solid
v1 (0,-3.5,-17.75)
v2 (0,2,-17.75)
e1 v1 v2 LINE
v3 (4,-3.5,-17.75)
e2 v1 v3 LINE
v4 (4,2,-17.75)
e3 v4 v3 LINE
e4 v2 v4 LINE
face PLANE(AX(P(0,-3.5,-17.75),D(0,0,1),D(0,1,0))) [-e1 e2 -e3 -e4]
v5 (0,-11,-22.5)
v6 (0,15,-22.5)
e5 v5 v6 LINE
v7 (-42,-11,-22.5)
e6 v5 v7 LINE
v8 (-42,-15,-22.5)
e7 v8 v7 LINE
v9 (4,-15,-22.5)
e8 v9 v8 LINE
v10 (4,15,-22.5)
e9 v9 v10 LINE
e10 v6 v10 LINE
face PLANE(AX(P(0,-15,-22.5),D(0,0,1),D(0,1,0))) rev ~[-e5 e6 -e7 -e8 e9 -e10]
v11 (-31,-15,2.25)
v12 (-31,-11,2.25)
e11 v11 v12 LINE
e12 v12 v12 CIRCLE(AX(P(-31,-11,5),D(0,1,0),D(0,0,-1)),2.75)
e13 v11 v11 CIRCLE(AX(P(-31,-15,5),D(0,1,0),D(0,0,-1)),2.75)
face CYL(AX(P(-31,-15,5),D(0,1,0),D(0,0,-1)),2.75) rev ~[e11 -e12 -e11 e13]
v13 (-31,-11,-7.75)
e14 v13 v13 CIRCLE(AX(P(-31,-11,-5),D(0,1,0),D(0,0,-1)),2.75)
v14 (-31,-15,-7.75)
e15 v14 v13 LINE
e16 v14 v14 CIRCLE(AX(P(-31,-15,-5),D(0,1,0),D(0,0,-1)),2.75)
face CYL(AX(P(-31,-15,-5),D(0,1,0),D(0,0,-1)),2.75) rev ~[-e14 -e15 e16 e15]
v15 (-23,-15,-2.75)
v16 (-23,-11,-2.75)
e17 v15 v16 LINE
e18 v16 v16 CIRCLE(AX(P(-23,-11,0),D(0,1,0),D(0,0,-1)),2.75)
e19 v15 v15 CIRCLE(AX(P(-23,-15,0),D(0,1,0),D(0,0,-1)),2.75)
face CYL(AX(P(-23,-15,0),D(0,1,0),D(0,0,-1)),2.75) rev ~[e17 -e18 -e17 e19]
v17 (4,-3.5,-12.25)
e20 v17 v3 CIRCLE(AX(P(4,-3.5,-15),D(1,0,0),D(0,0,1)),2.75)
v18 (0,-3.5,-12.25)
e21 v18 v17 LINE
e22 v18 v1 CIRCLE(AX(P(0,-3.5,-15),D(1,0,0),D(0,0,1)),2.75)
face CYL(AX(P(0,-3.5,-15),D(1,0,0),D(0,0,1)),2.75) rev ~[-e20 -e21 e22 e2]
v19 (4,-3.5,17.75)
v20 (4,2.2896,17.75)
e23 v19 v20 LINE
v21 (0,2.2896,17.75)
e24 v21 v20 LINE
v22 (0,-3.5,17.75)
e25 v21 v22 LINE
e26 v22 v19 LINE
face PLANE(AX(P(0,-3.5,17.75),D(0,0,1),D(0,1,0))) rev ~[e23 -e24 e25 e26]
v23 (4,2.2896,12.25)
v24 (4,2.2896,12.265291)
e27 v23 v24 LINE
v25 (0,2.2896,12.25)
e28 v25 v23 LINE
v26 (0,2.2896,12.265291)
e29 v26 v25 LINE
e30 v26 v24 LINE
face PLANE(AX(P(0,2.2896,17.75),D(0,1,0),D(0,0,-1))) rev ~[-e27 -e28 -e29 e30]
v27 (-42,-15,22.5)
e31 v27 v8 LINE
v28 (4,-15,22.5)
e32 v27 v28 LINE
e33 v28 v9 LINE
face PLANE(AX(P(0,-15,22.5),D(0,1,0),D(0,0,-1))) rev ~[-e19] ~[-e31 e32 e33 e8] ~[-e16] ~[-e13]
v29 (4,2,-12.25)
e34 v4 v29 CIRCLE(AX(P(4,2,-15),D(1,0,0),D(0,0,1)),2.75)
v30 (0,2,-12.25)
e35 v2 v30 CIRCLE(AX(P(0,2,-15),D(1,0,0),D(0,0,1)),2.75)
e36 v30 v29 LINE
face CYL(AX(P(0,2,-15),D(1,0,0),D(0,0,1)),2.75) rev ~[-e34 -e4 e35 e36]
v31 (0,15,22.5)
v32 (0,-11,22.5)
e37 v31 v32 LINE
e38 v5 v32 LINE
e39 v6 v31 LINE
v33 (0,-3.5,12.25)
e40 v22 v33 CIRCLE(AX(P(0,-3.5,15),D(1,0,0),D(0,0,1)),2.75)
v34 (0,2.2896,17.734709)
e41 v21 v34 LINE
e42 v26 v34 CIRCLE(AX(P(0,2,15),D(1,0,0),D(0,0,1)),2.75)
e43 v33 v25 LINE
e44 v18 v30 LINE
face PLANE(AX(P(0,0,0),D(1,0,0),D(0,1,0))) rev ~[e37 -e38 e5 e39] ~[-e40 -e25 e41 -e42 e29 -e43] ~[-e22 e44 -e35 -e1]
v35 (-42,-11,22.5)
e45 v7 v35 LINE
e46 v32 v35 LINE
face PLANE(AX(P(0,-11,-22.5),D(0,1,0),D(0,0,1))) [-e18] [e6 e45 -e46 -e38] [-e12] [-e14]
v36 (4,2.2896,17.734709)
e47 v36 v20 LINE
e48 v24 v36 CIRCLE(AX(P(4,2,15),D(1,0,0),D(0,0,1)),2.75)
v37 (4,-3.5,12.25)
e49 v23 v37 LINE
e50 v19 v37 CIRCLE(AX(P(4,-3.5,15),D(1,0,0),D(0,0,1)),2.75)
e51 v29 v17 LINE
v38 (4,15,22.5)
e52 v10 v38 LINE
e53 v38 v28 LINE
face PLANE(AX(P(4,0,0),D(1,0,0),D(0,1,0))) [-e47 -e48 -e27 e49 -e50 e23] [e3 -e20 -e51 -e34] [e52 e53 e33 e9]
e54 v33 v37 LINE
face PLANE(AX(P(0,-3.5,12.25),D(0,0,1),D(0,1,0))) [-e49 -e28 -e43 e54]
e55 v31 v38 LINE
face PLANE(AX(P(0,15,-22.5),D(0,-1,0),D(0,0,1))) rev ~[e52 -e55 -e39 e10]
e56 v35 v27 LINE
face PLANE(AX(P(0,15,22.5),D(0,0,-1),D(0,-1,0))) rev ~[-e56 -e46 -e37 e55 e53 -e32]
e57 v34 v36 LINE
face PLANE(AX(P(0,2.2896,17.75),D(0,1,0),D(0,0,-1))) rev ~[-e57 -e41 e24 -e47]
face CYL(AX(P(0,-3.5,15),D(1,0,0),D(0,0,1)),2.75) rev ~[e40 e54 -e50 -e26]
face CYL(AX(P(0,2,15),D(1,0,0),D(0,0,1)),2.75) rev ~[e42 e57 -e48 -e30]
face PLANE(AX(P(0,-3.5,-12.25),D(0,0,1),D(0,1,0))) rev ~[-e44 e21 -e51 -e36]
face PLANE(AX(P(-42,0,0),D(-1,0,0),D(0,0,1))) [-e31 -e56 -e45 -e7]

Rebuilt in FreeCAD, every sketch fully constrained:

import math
import FreeCAD as App
import Part
import Sketcher

V = App.Vector


def add_polygon(sketch, points):
    """Adds a closed chain of lines whose ends are joined by coincident constraints."""
    first, n = sketch.GeometryCount, len(points)
    for a, b in zip(points, points[1:] + points[:1]):
        sketch.addGeometry(Part.LineSegment(App.Vector(*a, 0), App.Vector(*b, 0)), False)
    for i in range(n):
        sketch.addConstraint(Sketcher.Constraint("Coincident", first + i, 2, first + (i + 1) % n, 1))

doc = App.newDocument("Part")
body = doc.addObject("PartDesign::Body", "Body")

# Sketch on YZ plane
sketch1 = body.newObject("Sketcher::SketchObject", "Sketch")
sketch1.AttachmentSupport = (doc.getObject("YZ_Plane"), [""])
sketch1.MapMode = "FlatFace"
add_polygon(sketch1, [(15, -22), (15, 22), (-15, 22), (-15, -22)])  # lines 0-3
sketch1.addConstraint(Sketcher.Constraint("Vertical", 0))
sketch1.addConstraint(Sketcher.Constraint("Horizontal", 1))
sketch1.addConstraint(Sketcher.Constraint("Vertical", 2))
sketch1.addConstraint(Sketcher.Constraint("Horizontal", 3))
sketch1.addConstraint(Sketcher.Constraint("Symmetric", 0, 2, 2, 2, -1, 1))
sketch1.addConstraint(Sketcher.Constraint("DistanceX", 1, 2, 1, 1, 30.0))
sketch1.addConstraint(Sketcher.Constraint("DistanceY", 0, 1, 0, 2, 45.0))
pad1 = body.newObject("PartDesign::Pad", "Pad")
pad1.Profile = sketch1
pad1.Length = 4

# Sketch on YZ plane
sketch2 = body.newObject("Sketcher::SketchObject", "Sketch001")
sketch2.AttachmentSupport = (doc.getObject("YZ_Plane"), [""])
sketch2.MapMode = "FlatFace"
add_polygon(sketch2, [(-11, -22.5), (-15, -22.5), (-15, 22.5), (-11, 22.5)])  # lines 0-3
sketch2.addConstraint(Sketcher.Constraint("Horizontal", 0))
sketch2.addConstraint(Sketcher.Constraint("Vertical", 1))
sketch2.addConstraint(Sketcher.Constraint("Horizontal", 2))
sketch2.addConstraint(Sketcher.Constraint("Vertical", 3))
sketch2.addConstraint(Sketcher.Constraint("DistanceX", 0, 2, 0, 1, 4.0))
sketch2.addConstraint(Sketcher.Constraint("DistanceY", 1, 1, 1, 2, 45.0))
sketch2.addConstraint(Sketcher.Constraint("DistanceX", 0, 2, -1, 1, 15.0))
sketch2.addConstraint(Sketcher.Constraint("DistanceY", 0, 2, -1, 1, 22.5))
pad2 = body.newObject("PartDesign::Pad", "Pad001")
pad2.Profile = sketch2
pad2.Length = 42
pad2.Reversed = True

# Sketch on XZ plane
sketch3 = body.newObject("Sketcher::SketchObject", "Sketch002")
sketch3.AttachmentSupport = (doc.getObject("XZ_Plane"), [""])
sketch3.MapMode = "FlatFace"
sketch3.AttachmentOffset = App.Placement(V(0, 0, 15), App.Rotation())
sketch3.addGeometry(Part.Circle(V(-23, 0, 0), V(0, 0, 1), 2.8), False)
sketch3.addGeometry(Part.Circle(V(-31, -5, 0), V(0, 0, 1), 2.8), False)
sketch3.addGeometry(Part.Circle(V(-31, 5, 0), V(0, 0, 1), 2.8), False)
sketch3.addConstraint(Sketcher.Constraint("Equal", 0, 1))
sketch3.addConstraint(Sketcher.Constraint("Equal", 1, 2))
sketch3.addConstraint(Sketcher.Constraint("Symmetric", 1, 3, 2, 3, -1))
sketch3.addConstraint(Sketcher.Constraint("PointOnObject", 0, 3, -1))
sketch3.addConstraint(Sketcher.Constraint("Diameter", 0, 5.5))
sketch3.addConstraint(Sketcher.Constraint("DistanceX", 0, 3, -1, 1, 23.0))
sketch3.addConstraint(Sketcher.Constraint("DistanceX", 1, 3, -1, 1, 31.0))
sketch3.addConstraint(Sketcher.Constraint("DistanceY", 1, 3, -1, 1, 5.0))
doc.recompute()
hole = body.newObject("PartDesign::Hole", "Hole")
hole.Profile = sketch3
hole.ThreadType = "None"
hole.Diameter = 5.5
hole.DepthType = "Dimension"
hole.Depth = 11.8
hole.DrillPoint = "Angled"
hole.DrillPointAngle = 118

# Sketch on YZ plane
sketch4 = body.newObject("Sketcher::SketchObject", "Sketch003")
sketch4.AttachmentSupport = (doc.getObject("YZ_Plane"), [""])
sketch4.MapMode = "FlatFace"
sketch4.addGeometry(Part.Circle(V(-3.5, 15, 0), V(0, 0, 1), 2.8), False)
sketch4.addGeometry(Part.Circle(V(-3.5, -15, 0), V(0, 0, 1), 2.8), False)
sketch4.addGeometry(Part.Circle(V(2, 15, 0), V(0, 0, 1), 2.8), False)
sketch4.addGeometry(Part.Circle(V(2, -15, 0), V(0, 0, 1), 2.8), False)
sketch4.addConstraint(Sketcher.Constraint("Equal", 0, 1))
sketch4.addConstraint(Sketcher.Constraint("Equal", 1, 2))
sketch4.addConstraint(Sketcher.Constraint("Equal", 2, 3))
sketch4.addConstraint(Sketcher.Constraint("Symmetric", 0, 3, 1, 3, -1))
sketch4.addConstraint(Sketcher.Constraint("Symmetric", 2, 3, 3, 3, -1))
sketch4.addConstraint(Sketcher.Constraint("Horizontal", 0, 3, 2, 3))
sketch4.addConstraint(Sketcher.Constraint("Diameter", 0, 5.5))
sketch4.addConstraint(Sketcher.Constraint("DistanceY", -1, 1, 0, 3, 15.0))
sketch4.addConstraint(Sketcher.Constraint("DistanceX", -1, 1, 2, 3, 2.0))
sketch4.addConstraint(Sketcher.Constraint("DistanceX", 0, 3, -1, 1, 3.5))
doc.recompute()
hole2 = body.newObject("PartDesign::Hole", "Hole001")
hole2.Profile = sketch4
hole2.ThreadType = "None"
hole2.Diameter = 5.5
hole2.DepthType = "Dimension"
hole2.Depth = 11.8
hole2.DrillPoint = "Angled"
hole2.DrillPointAngle = 118
hole2.Reversed = True

# Sketch on YZ plane
sketch5 = body.newObject("Sketcher::SketchObject", "Sketch004")
sketch5.AttachmentSupport = (doc.getObject("YZ_Plane"), [""])
sketch5.MapMode = "FlatFace"
sketch5.addGeometry(Part.ArcOfCircle(Part.Circle(V(-3.5, 15, 0), V(0, 0, 1), 2.8), math.radians(-90), math.radians(90)), False)
sketch5.addGeometry(Part.LineSegment(V(-3.5, 17.8, 0), V(2.3, 17.8, 0)), False)
sketch5.addGeometry(Part.LineSegment(V(2.3, 17.8, 0), V(2.3, 12.2, 0)), False)
sketch5.addGeometry(Part.LineSegment(V(2.3, 12.2, 0), V(-3.5, 12.2, 0)), False)
sketch5.addGeometry(Part.LineSegment(V(2, -17.8, 0), V(-3.5, -17.8, 0)), False)
sketch5.addGeometry(Part.ArcOfCircle(Part.Circle(V(-3.5, -15, 0), V(0, 0, 1), 2.8), math.radians(-90), math.radians(0)), False)
sketch5.addGeometry(Part.ArcOfCircle(Part.Circle(V(2, -15, 0), V(0, 0, 1), 2.8), math.radians(180), math.radians(270)), False)
sketch5.addGeometry(Part.ArcOfCircle(Part.Circle(V(-3.5, -15, 0), V(0, 0, 1), 2.8), math.radians(0), math.radians(90)), False)
sketch5.addGeometry(Part.LineSegment(V(-3.5, -12.2, 0), V(2, -12.2, 0)), False)
sketch5.addGeometry(Part.ArcOfCircle(Part.Circle(V(2, -15, 0), V(0, 0, 1), 2.8), math.radians(90), math.radians(180)), False)
sketch5.addConstraint(Sketcher.Constraint("Tangent", 0, 2, 1, 1))
sketch5.addConstraint(Sketcher.Constraint("Coincident", 1, 2, 2, 1))
sketch5.addConstraint(Sketcher.Constraint("Coincident", 2, 2, 3, 1))
sketch5.addConstraint(Sketcher.Constraint("Tangent", 3, 2, 0, 1))
sketch5.addConstraint(Sketcher.Constraint("Tangent", 4, 2, 5, 1))
sketch5.addConstraint(Sketcher.Constraint("Tangent", 5, 2, 6, 1))
sketch5.addConstraint(Sketcher.Constraint("Tangent", 6, 2, 4, 1))
sketch5.addConstraint(Sketcher.Constraint("Tangent", 7, 2, 8, 1))
sketch5.addConstraint(Sketcher.Constraint("Tangent", 8, 2, 9, 1))
sketch5.addConstraint(Sketcher.Constraint("Tangent", 9, 2, 7, 1))
sketch5.addConstraint(Sketcher.Constraint("Horizontal", 1))
sketch5.addConstraint(Sketcher.Constraint("Vertical", 2))
sketch5.addConstraint(Sketcher.Constraint("Horizontal", 3))
sketch5.addConstraint(Sketcher.Constraint("Horizontal", 4))
sketch5.addConstraint(Sketcher.Constraint("Horizontal", 8))
sketch5.addConstraint(Sketcher.Constraint("Coincident", 7, 3, 5, 3))
sketch5.addConstraint(Sketcher.Constraint("Coincident", 9, 3, 6, 3))
sketch5.addConstraint(Sketcher.Constraint("Equal", 0, 5))
sketch5.addConstraint(Sketcher.Constraint("Equal", 5, 6))
sketch5.addConstraint(Sketcher.Constraint("Symmetric", 0, 3, 5, 3, -1))
sketch5.addConstraint(Sketcher.Constraint("Radius", 0, 2.75))
sketch5.addConstraint(Sketcher.Constraint("DistanceY", -1, 1, 0, 3, 15.0))
sketch5.addConstraint(Sketcher.Constraint("DistanceX", -1, 1, 6, 3, 2.0))
sketch5.addConstraint(Sketcher.Constraint("DistanceX", 1, 1, 1, 2, 5.7896))
pocket1 = body.newObject("PartDesign::Pocket", "Pocket")
pocket1.Profile = sketch5
pocket1.Length = 6
pocket1.Reversed = True

doc.recompute()
